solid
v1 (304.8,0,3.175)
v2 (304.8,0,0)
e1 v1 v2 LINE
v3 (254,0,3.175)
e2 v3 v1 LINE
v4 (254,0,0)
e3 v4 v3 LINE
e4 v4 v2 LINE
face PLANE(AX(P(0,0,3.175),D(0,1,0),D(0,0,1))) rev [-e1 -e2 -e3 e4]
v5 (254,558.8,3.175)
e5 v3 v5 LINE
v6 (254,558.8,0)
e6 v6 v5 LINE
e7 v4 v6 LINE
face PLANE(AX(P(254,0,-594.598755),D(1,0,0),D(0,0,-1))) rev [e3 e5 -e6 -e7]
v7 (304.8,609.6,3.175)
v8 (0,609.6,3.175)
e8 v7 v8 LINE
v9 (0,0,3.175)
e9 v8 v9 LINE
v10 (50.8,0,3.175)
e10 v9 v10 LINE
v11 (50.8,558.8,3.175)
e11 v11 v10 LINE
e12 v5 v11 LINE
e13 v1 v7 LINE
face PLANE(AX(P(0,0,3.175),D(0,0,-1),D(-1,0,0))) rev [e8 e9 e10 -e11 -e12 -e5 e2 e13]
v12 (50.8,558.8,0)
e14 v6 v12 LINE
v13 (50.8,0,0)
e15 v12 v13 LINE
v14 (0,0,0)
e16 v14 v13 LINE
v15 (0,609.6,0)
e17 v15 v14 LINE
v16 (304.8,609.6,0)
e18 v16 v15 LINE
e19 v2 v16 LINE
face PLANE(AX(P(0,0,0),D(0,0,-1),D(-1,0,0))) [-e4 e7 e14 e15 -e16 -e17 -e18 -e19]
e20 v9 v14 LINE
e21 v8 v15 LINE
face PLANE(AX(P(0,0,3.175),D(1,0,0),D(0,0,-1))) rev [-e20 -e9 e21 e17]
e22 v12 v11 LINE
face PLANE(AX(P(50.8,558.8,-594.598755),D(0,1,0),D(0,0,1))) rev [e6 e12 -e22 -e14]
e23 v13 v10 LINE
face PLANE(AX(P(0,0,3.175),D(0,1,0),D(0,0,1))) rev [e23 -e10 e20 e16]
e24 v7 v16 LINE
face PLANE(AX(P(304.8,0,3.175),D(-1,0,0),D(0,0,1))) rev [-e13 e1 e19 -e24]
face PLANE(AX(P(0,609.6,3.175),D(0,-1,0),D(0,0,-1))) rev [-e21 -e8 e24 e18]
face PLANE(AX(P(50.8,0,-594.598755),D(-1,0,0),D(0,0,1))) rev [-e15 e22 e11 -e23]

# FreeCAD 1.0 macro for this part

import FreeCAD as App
import Part
import Sketcher

V = App.Vector
Q = App.Units.Quantity

doc = App.newDocument("Part")
body = doc.addObject("PartDesign::Body", "Body")

# Sketch on XY plane
sketch1 = body.newObject("Sketcher::SketchObject", "Sketch")
sketch1.AttachmentSupport = (doc.getObject("XY_Plane"), [""])
sketch1.MapMode = "FlatFace"
sketch1.addGeometry(Part.LineSegment(V(0, 610, 0), V(0, 0, 0)), False)
sketch1.addGeometry(Part.LineSegment(V(0, 0, 0), V(305, 0, 0)), False)
sketch1.addGeometry(Part.LineSegment(V(305, 0, 0), V(305, 610, 0)), False)
sketch1.addGeometry(Part.LineSegment(V(305, 610, 0), V(0, 610, 0)), False)
sketch1.addConstraint(Sketcher.Constraint("Coincident", 0, 2, 1, 1))
sketch1.addConstraint(Sketcher.Constraint("Coincident", 1, 2, 2, 1))
sketch1.addConstraint(Sketcher.Constraint("Coincident", 2, 2, 3, 1))
sketch1.addConstraint(Sketcher.Constraint("Coincident", 3, 2, 0, 1))
sketch1.addConstraint(Sketcher.Constraint("Vertical", 0))
sketch1.addConstraint(Sketcher.Constraint("Horizontal", 1))
sketch1.addConstraint(Sketcher.Constraint("Vertical", 2))
sketch1.addConstraint(Sketcher.Constraint("Horizontal", 3))
sketch1.addConstraint(Sketcher.Constraint("Coincident", 0, 2, -1, 1))
sketch1.addConstraint(Sketcher.Constraint("DistanceX", 1, 1, 1, 2, Q("12 in")))
sketch1.addConstraint(Sketcher.Constraint("DistanceY", 0, 2, 0, 1, Q("24 in")))
pad1 = body.newObject("PartDesign::Pad", "Pad")
pad1.Profile = sketch1
pad1.Length = Q("0.125 in")

# Sketch on XY plane
sketch2 = body.newObject("Sketcher::SketchObject", "Sketch001")
sketch2.AttachmentSupport = (doc.getObject("XY_Plane"), [""])
sketch2.MapMode = "FlatFace"
sketch2.AttachmentOffset = App.Placement(V(0, 0, 0.125 * 25.4), App.Rotation())
sketch2.addGeometry(Part.LineSegment(V(51, 559, 0), V(51, 0, 0)), False)
sketch2.addGeometry(Part.LineSegment(V(51, 0, 0), V(254, 0, 0)), False)
sketch2.addGeometry(Part.LineSegment(V(254, 0, 0), V(254, 559, 0)), False)
sketch2.addGeometry(Part.LineSegment(V(254, 559, 0), V(51, 559, 0)), False)
sketch2.addConstraint(Sketcher.Constraint("Coincident", 0, 2, 1, 1))
sketch2.addConstraint(Sketcher.Constraint("Coincident", 1, 2, 2, 1))
sketch2.addConstraint(Sketcher.Constraint("Coincident", 2, 2, 3, 1))
sketch2.addConstraint(Sketcher.Constraint("Coincident", 3, 2, 0, 1))
sketch2.addConstraint(Sketcher.Constraint("Vertical", 0))
sketch2.addConstraint(Sketcher.Constraint("Horizontal", 1))
sketch2.addConstraint(Sketcher.Constraint("Vertical", 2))
sketch2.addConstraint(Sketcher.Constraint("Horizontal", 3))
sketch2.addConstraint(Sketcher.Constraint("PointOnObject", 0, 2, -1))
sketch2.addConstraint(Sketcher.Constraint("DistanceX", 1, 1, 1, 2, Q("8 in")))
sketch2.addConstraint(Sketcher.Constraint("DistanceY", 0, 2, 0, 1, Q("22 in")))
sketch2.addConstraint(Sketcher.Constraint("DistanceX", -1, 1, 0, 2, Q("2 in")))
pocket1 = body.newObject("PartDesign::Pocket", "Pocket")
pocket1.Profile = sketch2
pocket1.Length = Q("0.125 in")

doc.recompute()
